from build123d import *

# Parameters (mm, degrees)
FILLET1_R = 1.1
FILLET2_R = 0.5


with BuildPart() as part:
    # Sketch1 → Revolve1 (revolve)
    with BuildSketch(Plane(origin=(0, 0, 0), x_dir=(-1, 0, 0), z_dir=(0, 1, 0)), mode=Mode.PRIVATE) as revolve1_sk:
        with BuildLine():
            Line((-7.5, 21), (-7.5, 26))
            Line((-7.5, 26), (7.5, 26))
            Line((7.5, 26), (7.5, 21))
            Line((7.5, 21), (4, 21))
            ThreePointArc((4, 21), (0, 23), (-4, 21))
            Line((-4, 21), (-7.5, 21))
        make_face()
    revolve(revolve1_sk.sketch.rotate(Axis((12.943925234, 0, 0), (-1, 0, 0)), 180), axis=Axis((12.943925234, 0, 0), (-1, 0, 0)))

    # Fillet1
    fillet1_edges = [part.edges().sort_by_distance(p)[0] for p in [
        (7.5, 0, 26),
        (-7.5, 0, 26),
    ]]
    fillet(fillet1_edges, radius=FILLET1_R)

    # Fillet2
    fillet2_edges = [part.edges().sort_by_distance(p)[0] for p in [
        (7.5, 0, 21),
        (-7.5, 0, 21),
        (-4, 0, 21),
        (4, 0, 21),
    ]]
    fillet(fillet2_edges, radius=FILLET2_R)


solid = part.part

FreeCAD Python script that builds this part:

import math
import FreeCAD as App
import Part
import Sketcher


def edges_at(feature, points):
    """Names of the edges that pass closest to the given points."""
    edges = feature.Shape.Edges
    near = lambda p: min(range(len(edges)), key=lambda i: edges[i].distToShape(Part.Vertex(*p))[0])
    return sorted({f"Edge{near(p) + 1}" for p in points})

doc = App.newDocument("Part")
body = doc.addObject("PartDesign::Body", "Body")

sketch1 = doc.addObject("Sketcher::SketchObject", "Sketch")
body.addObject(sketch1)
sketch1.AttachmentSupport = (doc.XZ_Plane, [""])
sketch1.MapMode = "FlatFace"
sketch1.addGeometry(Part.LineSegment(App.Vector(7.5, 26, 0), App.Vector(7.5, 21, 0)), False)
sketch1.addGeometry(Part.LineSegment(App.Vector(7.5, 21, 0), App.Vector(4, 21, 0)), False)
sketch1.addGeometry(Part.ArcOfCircle(Part.Circle(App.Vector(0, 18, 0), App.Vector(0, 0, 1), 5), math.radians(37), math.radians(143)), False)
sketch1.addGeometry(Part.LineSegment(App.Vector(-4, 21, 0), App.Vector(-7.5, 21, 0)), False)
sketch1.addGeometry(Part.LineSegment(App.Vector(-7.5, 21, 0), App.Vector(-7.5, 26, 0)), False)
sketch1.addGeometry(Part.LineSegment(App.Vector(-7.5, 26, 0), App.Vector(7.5, 26, 0)), False)
sketch1.addConstraint(Sketcher.Constraint("Coincident", 0, 2, 1, 1))
sketch1.addConstraint(Sketcher.Constraint("Coincident", 1, 2, 2, 1))
sketch1.addConstraint(Sketcher.Constraint("Coincident", 2, 2, 3, 1))
sketch1.addConstraint(Sketcher.Constraint("Coincident", 3, 2, 4, 1))
sketch1.addConstraint(Sketcher.Constraint("Coincident", 4, 2, 5, 1))
sketch1.addConstraint(Sketcher.Constraint("Coincident", 5, 2, 0, 1))
sketch1.addConstraint(Sketcher.Constraint("Vertical", 0))
sketch1.addConstraint(Sketcher.Constraint("Horizontal", 1))
sketch1.addConstraint(Sketcher.Constraint("Horizontal", 3))
sketch1.addConstraint(Sketcher.Constraint("Vertical", 4))
sketch1.addConstraint(Sketcher.Constraint("Horizontal", 5))
sketch1.addConstraint(Sketcher.Constraint("Symmetric", 1, 2, 2, 2, -2))
sketch1.addConstraint(Sketcher.Constraint("Equal", 1, 3))
sketch1.addConstraint(Sketcher.Constraint("Radius", 2, 5.0))
sketch1.addConstraint(Sketcher.Constraint("DistanceX", 5, 1, 5, 2, 15.0))
sketch1.addConstraint(Sketcher.Constraint("DistanceY", 0, 2, 0, 1, 5.0))
sketch1.addConstraint(Sketcher.Constraint("DistanceX", 1, 2, 1, 1, 3.5))
sketch1.addConstraint(Sketcher.Constraint("DistanceY", -1, 1, 2, 3, 18.0))
revolution = doc.addObject("PartDesign::Revolution", "Revolution")
body.addObject(revolution)
revolution.Profile = sketch1
revolution.ReferenceAxis = (sketch1, ["H_Axis"])
revolution.Angle = 360
doc.recompute()

fillet = doc.addObject("PartDesign::Fillet", "Fillet")
body.addObject(fillet)
fillet.Base = (revolution, edges_at(revolution, [(7.5, 0, 26), (-7.5, 0, 26)]))
fillet.Radius = 1.1
doc.recompute()

fillet2 = doc.addObject("PartDesign::Fillet", "Fillet001")
body.addObject(fillet2)
fillet2.Base = (fillet, edges_at(fillet, [
    (7.5, 0, 21),
    (-7.5, 0, 21),
    (-4, 0, 21),
    (4, 0, 21),
]))
fillet2.Radius = 0.5

doc.recompute()
